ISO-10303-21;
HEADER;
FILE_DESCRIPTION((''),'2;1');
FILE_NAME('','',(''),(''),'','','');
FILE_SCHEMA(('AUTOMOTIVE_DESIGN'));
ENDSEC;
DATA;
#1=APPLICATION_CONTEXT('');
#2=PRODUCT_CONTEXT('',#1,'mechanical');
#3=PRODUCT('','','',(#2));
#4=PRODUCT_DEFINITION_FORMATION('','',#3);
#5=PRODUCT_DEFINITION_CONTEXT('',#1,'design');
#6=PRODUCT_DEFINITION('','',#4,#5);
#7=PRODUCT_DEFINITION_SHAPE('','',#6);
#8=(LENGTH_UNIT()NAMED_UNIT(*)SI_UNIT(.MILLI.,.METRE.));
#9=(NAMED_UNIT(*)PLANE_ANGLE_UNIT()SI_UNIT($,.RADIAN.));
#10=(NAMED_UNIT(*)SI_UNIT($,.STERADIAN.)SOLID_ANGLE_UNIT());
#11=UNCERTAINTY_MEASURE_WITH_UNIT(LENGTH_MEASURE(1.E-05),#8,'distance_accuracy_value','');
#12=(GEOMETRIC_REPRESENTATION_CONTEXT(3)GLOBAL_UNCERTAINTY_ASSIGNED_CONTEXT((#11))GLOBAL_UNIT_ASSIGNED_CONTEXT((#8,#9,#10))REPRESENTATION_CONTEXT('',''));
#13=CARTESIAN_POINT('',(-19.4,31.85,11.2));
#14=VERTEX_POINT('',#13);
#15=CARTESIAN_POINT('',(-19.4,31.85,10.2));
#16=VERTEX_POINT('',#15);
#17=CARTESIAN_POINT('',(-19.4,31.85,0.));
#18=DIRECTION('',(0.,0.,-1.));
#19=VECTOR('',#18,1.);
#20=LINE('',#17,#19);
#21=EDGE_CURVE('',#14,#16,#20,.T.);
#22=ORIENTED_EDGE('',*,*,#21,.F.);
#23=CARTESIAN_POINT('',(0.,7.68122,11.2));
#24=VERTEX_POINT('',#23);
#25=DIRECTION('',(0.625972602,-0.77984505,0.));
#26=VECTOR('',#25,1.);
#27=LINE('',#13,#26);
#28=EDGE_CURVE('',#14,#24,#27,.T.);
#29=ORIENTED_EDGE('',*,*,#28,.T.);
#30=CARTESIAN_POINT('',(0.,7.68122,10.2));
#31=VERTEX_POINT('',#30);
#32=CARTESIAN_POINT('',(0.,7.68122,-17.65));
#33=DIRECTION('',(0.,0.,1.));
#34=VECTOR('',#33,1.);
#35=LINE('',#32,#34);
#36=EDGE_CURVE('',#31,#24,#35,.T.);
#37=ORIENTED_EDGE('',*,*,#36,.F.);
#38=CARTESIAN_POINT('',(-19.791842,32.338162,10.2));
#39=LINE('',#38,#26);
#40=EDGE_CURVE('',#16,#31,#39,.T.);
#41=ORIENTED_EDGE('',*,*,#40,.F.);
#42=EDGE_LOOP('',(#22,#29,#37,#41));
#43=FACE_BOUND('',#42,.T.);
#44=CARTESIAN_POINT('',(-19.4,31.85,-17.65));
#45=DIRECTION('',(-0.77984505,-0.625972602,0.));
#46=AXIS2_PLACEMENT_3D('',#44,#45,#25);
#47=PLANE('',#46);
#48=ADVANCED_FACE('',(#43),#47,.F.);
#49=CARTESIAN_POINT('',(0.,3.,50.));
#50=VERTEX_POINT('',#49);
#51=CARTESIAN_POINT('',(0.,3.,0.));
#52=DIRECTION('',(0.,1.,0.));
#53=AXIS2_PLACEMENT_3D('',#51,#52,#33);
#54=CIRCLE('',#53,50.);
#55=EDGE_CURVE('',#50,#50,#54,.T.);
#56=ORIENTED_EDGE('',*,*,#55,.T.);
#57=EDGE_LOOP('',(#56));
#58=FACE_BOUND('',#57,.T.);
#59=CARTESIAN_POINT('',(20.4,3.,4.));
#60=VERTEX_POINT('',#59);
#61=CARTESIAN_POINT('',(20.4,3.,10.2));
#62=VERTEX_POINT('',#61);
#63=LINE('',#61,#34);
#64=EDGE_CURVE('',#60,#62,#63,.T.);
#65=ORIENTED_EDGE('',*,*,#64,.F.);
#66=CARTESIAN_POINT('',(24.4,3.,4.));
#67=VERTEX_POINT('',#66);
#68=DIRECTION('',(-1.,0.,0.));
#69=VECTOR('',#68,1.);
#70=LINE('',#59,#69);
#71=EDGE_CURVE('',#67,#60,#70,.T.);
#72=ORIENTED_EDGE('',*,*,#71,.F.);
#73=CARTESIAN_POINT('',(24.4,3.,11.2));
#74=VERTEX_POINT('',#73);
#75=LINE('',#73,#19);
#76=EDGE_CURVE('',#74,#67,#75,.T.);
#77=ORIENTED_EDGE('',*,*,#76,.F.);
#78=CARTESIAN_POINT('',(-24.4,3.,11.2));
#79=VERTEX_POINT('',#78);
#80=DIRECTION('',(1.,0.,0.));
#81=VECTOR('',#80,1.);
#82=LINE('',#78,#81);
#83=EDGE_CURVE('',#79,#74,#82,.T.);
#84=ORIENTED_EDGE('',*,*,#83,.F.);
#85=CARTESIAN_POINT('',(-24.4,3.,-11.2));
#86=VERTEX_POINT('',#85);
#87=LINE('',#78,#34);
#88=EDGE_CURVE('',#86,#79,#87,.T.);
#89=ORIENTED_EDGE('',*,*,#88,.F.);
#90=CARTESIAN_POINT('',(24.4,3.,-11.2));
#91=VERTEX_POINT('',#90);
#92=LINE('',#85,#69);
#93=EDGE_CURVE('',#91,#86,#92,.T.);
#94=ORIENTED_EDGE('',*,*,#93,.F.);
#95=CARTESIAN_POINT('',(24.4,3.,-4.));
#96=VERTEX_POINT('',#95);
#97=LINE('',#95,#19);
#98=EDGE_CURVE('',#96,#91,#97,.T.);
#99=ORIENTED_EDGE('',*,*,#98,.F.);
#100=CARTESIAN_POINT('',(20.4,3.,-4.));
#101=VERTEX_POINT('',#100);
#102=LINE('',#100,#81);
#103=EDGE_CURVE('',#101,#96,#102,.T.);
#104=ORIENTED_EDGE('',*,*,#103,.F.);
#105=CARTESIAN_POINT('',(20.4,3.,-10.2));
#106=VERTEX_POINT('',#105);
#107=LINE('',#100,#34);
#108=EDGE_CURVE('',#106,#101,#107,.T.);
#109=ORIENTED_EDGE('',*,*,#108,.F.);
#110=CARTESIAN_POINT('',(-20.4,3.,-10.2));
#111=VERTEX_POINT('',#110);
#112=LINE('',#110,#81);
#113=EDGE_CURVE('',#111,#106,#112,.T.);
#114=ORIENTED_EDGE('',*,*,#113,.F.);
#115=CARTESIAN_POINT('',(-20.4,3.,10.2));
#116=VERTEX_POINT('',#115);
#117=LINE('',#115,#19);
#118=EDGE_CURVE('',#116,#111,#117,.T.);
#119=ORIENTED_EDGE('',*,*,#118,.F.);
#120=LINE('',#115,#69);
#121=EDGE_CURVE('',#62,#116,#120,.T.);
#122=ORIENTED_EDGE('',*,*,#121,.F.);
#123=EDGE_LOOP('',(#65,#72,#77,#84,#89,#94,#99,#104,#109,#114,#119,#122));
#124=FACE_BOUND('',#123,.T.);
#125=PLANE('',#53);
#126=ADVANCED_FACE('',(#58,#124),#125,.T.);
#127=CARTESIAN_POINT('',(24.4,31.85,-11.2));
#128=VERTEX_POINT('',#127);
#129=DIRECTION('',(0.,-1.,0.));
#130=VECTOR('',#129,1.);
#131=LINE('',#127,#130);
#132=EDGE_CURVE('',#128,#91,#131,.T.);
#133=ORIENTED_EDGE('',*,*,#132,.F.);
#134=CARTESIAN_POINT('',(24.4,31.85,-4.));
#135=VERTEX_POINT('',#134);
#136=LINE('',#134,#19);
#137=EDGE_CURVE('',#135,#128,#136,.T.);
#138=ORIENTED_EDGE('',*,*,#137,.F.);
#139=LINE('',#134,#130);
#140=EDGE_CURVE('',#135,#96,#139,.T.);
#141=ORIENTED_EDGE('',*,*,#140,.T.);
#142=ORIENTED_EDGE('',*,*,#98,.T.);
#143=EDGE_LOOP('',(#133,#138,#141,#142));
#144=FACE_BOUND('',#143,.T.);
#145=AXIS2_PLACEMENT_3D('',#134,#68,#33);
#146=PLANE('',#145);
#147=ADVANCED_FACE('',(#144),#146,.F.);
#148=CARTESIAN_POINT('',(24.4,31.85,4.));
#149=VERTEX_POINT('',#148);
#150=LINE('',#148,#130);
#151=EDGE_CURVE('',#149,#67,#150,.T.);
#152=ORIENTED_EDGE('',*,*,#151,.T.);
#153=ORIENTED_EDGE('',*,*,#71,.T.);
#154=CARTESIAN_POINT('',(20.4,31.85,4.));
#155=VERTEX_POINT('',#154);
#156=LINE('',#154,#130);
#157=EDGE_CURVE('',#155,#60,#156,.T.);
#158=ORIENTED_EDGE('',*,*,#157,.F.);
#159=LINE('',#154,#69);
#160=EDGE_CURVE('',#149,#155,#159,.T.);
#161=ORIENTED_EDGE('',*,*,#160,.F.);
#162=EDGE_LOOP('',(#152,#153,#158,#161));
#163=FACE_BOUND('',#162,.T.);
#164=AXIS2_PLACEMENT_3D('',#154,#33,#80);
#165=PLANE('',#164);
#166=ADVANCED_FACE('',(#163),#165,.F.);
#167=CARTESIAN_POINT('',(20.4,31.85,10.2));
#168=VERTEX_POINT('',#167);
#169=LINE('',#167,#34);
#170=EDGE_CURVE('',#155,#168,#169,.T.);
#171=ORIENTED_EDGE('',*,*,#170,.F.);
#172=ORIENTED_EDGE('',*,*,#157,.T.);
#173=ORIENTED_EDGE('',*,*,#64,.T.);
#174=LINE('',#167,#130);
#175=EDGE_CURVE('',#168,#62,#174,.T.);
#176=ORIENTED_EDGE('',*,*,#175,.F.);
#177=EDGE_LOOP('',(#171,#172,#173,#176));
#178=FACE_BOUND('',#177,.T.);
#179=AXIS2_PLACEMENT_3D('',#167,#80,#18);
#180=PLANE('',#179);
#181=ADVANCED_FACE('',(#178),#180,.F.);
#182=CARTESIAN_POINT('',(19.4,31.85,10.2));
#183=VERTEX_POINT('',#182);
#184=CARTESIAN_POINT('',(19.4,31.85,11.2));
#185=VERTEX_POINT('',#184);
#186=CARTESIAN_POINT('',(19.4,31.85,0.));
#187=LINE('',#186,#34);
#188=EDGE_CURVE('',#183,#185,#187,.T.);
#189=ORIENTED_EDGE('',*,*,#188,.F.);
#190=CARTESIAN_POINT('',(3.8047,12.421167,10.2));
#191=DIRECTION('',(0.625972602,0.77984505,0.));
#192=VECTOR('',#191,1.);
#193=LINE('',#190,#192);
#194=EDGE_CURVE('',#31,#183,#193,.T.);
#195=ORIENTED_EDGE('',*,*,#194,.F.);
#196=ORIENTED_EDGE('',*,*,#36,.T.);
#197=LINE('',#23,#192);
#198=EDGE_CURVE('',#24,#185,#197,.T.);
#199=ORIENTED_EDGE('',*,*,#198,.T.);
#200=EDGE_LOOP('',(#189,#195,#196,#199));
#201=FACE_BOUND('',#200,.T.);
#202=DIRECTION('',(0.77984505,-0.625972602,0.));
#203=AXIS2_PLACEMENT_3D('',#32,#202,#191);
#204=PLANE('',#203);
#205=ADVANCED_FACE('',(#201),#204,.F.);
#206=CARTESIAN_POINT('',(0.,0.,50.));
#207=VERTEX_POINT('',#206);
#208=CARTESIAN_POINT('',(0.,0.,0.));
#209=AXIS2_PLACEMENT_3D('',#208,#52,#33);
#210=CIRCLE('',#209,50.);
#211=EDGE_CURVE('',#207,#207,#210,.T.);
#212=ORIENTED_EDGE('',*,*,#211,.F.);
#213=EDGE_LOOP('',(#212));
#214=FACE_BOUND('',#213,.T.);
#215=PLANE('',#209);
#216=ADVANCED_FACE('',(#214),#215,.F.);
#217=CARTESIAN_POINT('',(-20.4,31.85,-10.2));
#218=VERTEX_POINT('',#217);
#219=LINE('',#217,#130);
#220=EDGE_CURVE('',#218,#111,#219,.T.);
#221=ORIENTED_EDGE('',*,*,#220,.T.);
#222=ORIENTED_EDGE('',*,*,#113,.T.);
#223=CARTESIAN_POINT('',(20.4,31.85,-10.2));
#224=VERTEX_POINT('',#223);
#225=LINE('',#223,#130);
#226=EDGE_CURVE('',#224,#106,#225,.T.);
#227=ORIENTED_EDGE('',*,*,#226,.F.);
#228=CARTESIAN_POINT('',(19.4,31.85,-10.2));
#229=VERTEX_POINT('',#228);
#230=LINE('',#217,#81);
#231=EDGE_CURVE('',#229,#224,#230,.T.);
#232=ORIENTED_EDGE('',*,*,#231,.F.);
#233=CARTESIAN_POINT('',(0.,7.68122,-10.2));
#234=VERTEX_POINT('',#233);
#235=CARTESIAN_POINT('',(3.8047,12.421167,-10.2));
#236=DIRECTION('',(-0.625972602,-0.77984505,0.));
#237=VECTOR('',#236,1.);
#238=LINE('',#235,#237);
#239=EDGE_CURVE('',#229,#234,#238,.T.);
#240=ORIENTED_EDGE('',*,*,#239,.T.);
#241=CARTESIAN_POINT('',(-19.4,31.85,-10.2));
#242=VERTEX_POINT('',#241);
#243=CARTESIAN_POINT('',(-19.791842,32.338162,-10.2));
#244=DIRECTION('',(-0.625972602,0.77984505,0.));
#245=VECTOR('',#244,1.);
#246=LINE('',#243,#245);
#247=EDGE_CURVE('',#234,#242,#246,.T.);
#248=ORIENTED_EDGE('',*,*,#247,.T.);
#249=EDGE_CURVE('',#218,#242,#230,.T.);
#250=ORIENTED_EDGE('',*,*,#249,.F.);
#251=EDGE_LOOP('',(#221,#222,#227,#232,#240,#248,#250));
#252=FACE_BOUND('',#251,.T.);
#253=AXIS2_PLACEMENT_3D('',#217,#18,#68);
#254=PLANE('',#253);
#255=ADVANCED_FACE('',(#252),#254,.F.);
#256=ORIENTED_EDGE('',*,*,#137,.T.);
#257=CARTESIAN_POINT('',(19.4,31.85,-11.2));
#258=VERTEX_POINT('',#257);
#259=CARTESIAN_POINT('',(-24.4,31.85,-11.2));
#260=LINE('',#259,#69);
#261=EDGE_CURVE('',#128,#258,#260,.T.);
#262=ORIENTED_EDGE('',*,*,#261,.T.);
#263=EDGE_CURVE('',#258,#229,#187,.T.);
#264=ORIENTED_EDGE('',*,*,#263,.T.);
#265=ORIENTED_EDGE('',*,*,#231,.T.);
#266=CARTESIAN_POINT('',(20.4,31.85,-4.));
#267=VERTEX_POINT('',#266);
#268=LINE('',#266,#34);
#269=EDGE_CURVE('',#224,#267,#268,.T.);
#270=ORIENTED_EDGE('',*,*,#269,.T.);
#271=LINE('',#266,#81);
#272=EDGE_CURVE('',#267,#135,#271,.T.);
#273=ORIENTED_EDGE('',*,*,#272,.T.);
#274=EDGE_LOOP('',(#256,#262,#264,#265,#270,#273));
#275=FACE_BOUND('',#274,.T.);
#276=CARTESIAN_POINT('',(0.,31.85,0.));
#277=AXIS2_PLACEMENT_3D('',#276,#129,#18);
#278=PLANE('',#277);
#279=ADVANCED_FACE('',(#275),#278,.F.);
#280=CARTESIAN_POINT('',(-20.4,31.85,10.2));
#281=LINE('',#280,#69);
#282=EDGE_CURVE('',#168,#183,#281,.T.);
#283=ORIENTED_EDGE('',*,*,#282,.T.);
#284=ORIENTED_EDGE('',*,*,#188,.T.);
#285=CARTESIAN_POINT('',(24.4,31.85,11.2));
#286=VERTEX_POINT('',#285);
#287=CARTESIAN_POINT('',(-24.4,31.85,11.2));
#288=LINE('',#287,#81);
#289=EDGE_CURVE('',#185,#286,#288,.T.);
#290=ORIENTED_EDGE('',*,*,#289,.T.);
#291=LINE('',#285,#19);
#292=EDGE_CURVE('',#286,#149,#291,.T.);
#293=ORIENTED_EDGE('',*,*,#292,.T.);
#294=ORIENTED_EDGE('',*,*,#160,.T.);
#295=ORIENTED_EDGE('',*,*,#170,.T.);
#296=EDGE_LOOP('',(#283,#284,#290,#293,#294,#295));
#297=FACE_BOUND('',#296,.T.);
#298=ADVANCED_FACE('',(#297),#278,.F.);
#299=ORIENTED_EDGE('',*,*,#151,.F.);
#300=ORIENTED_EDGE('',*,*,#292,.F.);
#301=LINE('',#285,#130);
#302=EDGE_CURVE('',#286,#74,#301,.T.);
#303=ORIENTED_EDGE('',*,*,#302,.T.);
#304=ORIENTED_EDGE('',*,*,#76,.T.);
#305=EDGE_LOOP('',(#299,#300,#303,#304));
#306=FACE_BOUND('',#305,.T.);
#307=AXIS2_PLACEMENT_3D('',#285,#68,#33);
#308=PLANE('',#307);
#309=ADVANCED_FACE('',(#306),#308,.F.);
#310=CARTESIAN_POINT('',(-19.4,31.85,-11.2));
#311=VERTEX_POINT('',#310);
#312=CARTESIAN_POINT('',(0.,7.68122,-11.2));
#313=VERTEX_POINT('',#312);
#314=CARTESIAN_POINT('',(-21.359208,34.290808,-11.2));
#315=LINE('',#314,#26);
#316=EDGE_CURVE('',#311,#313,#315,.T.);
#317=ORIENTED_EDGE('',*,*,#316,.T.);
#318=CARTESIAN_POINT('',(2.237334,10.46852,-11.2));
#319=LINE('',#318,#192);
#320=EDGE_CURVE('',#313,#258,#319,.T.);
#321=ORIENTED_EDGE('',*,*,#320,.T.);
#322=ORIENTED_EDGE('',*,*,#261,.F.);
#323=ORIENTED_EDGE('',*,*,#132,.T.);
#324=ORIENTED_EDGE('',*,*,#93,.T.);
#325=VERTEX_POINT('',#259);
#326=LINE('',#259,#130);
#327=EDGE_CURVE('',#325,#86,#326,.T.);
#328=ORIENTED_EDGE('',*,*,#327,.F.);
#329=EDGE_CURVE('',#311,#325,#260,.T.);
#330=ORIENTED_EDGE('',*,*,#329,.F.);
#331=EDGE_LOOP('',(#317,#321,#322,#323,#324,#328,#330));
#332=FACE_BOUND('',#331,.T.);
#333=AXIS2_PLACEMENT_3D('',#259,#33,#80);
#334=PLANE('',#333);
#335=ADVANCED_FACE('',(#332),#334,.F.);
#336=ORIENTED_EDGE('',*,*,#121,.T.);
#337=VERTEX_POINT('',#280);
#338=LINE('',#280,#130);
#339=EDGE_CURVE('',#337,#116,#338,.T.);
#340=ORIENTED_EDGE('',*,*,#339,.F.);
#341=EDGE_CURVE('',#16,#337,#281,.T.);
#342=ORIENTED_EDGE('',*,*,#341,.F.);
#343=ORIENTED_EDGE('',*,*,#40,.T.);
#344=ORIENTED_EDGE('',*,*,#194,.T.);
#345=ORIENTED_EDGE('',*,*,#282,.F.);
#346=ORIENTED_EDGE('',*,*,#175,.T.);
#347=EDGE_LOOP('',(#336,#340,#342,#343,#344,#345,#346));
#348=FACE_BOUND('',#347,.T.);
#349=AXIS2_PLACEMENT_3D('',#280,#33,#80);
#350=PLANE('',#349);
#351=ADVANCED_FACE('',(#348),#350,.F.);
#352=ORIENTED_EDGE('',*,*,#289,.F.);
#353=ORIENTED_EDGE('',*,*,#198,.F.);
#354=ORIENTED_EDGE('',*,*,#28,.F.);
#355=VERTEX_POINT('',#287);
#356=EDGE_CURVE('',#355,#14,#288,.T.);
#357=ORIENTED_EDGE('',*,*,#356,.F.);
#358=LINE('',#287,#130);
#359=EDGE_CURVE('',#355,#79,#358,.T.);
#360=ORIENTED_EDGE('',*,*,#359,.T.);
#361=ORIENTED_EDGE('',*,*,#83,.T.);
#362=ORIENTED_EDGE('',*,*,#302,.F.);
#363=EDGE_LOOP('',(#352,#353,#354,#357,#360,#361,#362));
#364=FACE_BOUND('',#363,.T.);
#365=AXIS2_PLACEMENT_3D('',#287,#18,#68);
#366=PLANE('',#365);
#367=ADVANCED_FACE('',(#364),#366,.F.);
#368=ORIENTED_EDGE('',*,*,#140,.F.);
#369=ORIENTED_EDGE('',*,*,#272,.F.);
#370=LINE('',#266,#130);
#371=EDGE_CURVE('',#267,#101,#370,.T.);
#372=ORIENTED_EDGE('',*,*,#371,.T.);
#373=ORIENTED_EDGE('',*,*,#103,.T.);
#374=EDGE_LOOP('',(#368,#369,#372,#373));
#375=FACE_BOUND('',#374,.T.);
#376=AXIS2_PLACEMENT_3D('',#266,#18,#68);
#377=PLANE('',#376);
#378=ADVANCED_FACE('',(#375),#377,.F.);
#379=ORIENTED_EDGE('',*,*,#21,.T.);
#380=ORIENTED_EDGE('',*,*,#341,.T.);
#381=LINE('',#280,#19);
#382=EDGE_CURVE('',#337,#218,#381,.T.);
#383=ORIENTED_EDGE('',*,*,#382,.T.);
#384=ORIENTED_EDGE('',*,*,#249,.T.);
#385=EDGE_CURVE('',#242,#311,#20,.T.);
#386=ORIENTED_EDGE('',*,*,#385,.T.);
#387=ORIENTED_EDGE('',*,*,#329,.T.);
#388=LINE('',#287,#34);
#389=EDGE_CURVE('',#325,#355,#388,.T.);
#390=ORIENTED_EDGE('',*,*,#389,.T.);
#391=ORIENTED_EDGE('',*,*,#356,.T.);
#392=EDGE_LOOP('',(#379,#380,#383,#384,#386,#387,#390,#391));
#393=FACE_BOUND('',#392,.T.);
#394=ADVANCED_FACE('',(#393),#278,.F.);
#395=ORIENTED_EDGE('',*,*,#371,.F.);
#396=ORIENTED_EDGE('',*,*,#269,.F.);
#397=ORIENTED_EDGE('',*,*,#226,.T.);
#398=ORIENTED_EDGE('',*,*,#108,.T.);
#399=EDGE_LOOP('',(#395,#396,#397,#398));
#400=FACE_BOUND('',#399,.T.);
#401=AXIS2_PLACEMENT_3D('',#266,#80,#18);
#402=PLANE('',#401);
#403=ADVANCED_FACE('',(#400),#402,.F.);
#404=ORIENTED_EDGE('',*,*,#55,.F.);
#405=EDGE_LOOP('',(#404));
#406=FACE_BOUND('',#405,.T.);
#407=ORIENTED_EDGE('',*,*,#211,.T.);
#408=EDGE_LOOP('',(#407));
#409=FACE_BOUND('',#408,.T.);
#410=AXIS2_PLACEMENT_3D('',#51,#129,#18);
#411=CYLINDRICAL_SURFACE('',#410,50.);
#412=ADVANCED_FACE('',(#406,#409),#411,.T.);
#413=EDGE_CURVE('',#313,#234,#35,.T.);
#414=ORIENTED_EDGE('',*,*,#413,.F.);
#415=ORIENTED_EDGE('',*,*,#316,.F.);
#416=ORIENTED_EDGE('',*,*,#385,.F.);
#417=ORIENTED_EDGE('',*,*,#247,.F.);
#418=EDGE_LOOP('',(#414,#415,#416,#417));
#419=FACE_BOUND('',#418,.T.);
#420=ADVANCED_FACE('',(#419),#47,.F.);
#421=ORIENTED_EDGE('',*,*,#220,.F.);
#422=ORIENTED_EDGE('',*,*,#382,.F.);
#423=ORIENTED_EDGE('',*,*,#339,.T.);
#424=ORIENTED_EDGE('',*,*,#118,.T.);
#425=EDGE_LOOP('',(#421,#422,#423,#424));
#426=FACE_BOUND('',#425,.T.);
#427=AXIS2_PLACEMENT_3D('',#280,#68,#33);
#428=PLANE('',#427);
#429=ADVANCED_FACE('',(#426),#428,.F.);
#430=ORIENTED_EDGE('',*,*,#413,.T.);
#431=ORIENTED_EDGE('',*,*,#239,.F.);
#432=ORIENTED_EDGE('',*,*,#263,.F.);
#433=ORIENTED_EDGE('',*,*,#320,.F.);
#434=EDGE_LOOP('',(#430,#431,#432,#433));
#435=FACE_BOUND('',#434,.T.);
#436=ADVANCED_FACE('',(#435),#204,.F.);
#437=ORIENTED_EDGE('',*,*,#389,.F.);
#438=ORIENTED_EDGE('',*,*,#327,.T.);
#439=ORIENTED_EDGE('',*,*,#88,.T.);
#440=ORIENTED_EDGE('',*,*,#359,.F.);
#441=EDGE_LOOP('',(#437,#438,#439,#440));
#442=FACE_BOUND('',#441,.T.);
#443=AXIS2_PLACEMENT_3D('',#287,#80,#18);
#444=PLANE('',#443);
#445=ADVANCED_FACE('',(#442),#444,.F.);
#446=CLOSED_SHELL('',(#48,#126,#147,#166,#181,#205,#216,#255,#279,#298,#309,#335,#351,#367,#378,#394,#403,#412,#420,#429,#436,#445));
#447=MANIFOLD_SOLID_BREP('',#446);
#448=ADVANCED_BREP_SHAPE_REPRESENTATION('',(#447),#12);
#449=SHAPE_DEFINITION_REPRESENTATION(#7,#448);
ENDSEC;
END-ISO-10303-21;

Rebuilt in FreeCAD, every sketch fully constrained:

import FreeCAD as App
import Part
import Sketcher

V = App.Vector

doc = App.newDocument("Part")
body = doc.addObject("PartDesign::Body", "Body")

# Sketch on XZ plane
sketch1 = body.newObject("Sketcher::SketchObject", "Sketch")
sketch1.AttachmentSupport = (doc.getObject("XZ_Plane"), [""])
sketch1.MapMode = "FlatFace"
sketch1.addGeometry(Part.Circle(V(0, 0, 0), V(0, 0, 1), 50), False)
sketch1.addConstraint([
    Sketcher.Constraint("Coincident", 0, 3, -1, 1),
    Sketcher.Constraint("Diameter", 0, 100.0),
])
pad1 = body.newObject("PartDesign::Pad", "Pad")
pad1.Profile = sketch1
pad1.Length = 3
pad1.Reversed = True

# Sketch on XZ plane
sketch2 = body.newObject("Sketcher::SketchObject", "Sketch001")
sketch2.AttachmentSupport = (doc.getObject("XZ_Plane"), [""])
sketch2.MapMode = "FlatFace"
sketch2.AttachmentOffset = App.Placement(V(0, 0, -3), App.Rotation())
sketch2.addGeometry([
    Part.LineSegment(V(20.4, -4, 0), V(24.4, -4, 0)),  # 0
    Part.LineSegment(V(24.4, -4, 0), V(24.4, -11.2, 0)),  # 1
    Part.LineSegment(V(24.4, -11.2, 0), V(-24.4, -11.2, 0)),  # 2
    Part.LineSegment(V(-24.4, -11.2, 0), V(-24.4, 11.2, 0)),  # 3
    Part.LineSegment(V(-24.4, 11.2, 0), V(24.4, 11.2, 0)),  # 4
    Part.LineSegment(V(24.4, 11.2, 0), V(24.4, 4, 0)),  # 5
    Part.LineSegment(V(24.4, 4, 0), V(20.4, 4, 0)),  # 6
    Part.LineSegment(V(20.4, 4, 0), V(20.4, 10.2, 0)),  # 7
    Part.LineSegment(V(20.4, 10.2, 0), V(-20.4, 10.2, 0)),  # 8
    Part.LineSegment(V(-20.4, 10.2, 0), V(-20.4, -10.2, 0)),  # 9
    Part.LineSegment(V(-20.4, -10.2, 0), V(20.4, -10.2, 0)),  # 10
    Part.LineSegment(V(20.4, -10.2, 0), V(20.4, -4, 0)),  # 11
], False)
sketch2.addConstraint([
    Sketcher.Constraint("Coincident", 0, 2, 1, 1),
    Sketcher.Constraint("Coincident", 1, 2, 2, 1),
    Sketcher.Constraint("Coincident", 2, 2, 3, 1),
    Sketcher.Constraint("Coincident", 3, 2, 4, 1),
    Sketcher.Constraint("Coincident", 4, 2, 5, 1),
    Sketcher.Constraint("Coincident", 5, 2, 6, 1),
    Sketcher.Constraint("Coincident", 6, 2, 7, 1),
    Sketcher.Constraint("Coincident", 7, 2, 8, 1),
    Sketcher.Constraint("Coincident", 8, 2, 9, 1),
    Sketcher.Constraint("Coincident", 9, 2, 10, 1),
    Sketcher.Constraint("Coincident", 10, 2, 11, 1),
    Sketcher.Constraint("Coincident", 11, 2, 0, 1),
    Sketcher.Constraint("Horizontal", 0),
    Sketcher.Constraint("Vertical", 1),
    Sketcher.Constraint("Horizontal", 2),
    Sketcher.Constraint("Vertical", 3),
    Sketcher.Constraint("Horizontal", 4),
    Sketcher.Constraint("Vertical", 5),
    Sketcher.Constraint("Horizontal", 6),
    Sketcher.Constraint("Vertical", 7),
    Sketcher.Constraint("Horizontal", 8),
    Sketcher.Constraint("Vertical", 9),
    Sketcher.Constraint("Horizontal", 10),
    Sketcher.Constraint("Vertical", 11),
    Sketcher.Constraint("Symmetric", 1, 2, 3, 2, -1, 1),
    Sketcher.Constraint("Symmetric", 7, 2, 9, 2, -1, 1),
    Sketcher.Constraint("Symmetric", 0, 2, 5, 2, -1),
    Sketcher.Constraint("Vertical", 7, 2, 10, 2),
    Sketcher.Constraint("DistanceX", 0, 1, 0, 2, 4.0),
    Sketcher.Constraint("DistanceX", 2, 2, 2, 1, 48.8),
    Sketcher.Constraint("DistanceY", 1, 2, 1, 1, 7.2),
    Sketcher.Constraint("DistanceY", 3, 1, 3, 2, 22.4),
    Sketcher.Constraint("DistanceY", 7, 1, 7, 2, 6.2),
])
pad2 = body.newObject("PartDesign::Pad", "Pad001")
pad2.Profile = sketch2
pad2.Length = 28.85
pad2.Reversed = True

# Sketch on XY plane
sketch3 = body.newObject("Sketcher::SketchObject", "Sketch002")
sketch3.AttachmentSupport = (doc.getObject("XY_Plane"), [""])
sketch3.MapMode = "FlatFace"
sketch3.AttachmentOffset = App.Placement(V(0, 0, 11.2), App.Rotation())
sketch3.addGeometry([
    Part.LineSegment(V(-19, 32, 0), V(0, 8, 0)),
    Part.LineSegment(V(0, 8, 0), V(19, 32, 0)),
    Part.LineSegment(V(19, 32, 0), V(-19, 32, 0)),
], False)
sketch3.addConstraint([
    Sketcher.Constraint("Coincident", 0, 2, 1, 1),
    Sketcher.Constraint("Coincident", 1, 2, 2, 1),
    Sketcher.Constraint("Coincident", 2, 2, 0, 1),
    Sketcher.Constraint("Horizontal", 2),
    Sketcher.Constraint("PointOnObject", 0, 2, -2),
    Sketcher.Constraint("Equal", 0, 1),
    Sketcher.Constraint("DistanceX", 2, 2, 2, 1, 38.8),
    Sketcher.Constraint("DistanceY", -1, 1, 1, 2, 31.85),
    Sketcher.Constraint("Distance", 0, 30.991772),
])
pocket1 = body.newObject("PartDesign::Pocket", "Pocket")
pocket1.Profile = sketch3
pocket1.Length = 28.85

doc.recompute()
